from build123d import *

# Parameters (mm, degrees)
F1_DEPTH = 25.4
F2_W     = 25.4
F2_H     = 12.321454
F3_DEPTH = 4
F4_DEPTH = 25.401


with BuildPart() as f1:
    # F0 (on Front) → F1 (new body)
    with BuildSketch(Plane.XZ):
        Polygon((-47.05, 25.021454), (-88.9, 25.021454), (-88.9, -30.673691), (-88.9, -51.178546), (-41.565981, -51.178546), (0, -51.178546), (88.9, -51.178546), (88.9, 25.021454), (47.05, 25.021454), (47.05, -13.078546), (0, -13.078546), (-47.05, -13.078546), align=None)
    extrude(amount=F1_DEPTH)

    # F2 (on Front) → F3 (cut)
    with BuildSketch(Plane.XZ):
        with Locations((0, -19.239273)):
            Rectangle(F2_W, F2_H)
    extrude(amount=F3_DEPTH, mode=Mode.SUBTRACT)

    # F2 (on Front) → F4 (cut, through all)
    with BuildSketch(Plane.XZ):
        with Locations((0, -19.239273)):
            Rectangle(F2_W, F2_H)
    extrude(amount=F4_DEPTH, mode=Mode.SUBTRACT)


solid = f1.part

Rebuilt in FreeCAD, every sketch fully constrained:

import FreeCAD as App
import Part
import Sketcher

V = App.Vector
Q = App.Units.Quantity

doc = App.newDocument("Part")
body = doc.addObject("PartDesign::Body", "Body")

# Sketch on XZ plane
sketch1 = body.newObject("Sketcher::SketchObject", "Sketch")
sketch1.AttachmentSupport = (doc.getObject("XZ_Plane"), [""])
sketch1.MapMode = "FlatFace"
sketch1.addGeometry([
    Part.LineSegment(V(-47, 25, 0), V(-89, 25, 0)),  # 0
    Part.LineSegment(V(-89, 25, 0), V(-89, -51, 0)),  # 1
    Part.LineSegment(V(-89, -51, 0), V(89, -51, 0)),  # 2
    Part.LineSegment(V(89, -51, 0), V(89, 25, 0)),  # 3
    Part.LineSegment(V(89, 25, 0), V(47, 25, 0)),  # 4
    Part.LineSegment(V(47, 25, 0), V(47, -13, 0)),  # 5
    Part.LineSegment(V(47, -13, 0), V(-47, -13, 0)),  # 6
    Part.LineSegment(V(-47, -13, 0), V(-47, 25, 0)),  # 7
], False)
sketch1.addConstraint([
    Sketcher.Constraint("Coincident", 0, 2, 1, 1),
    Sketcher.Constraint("Coincident", 1, 2, 2, 1),
    Sketcher.Constraint("Coincident", 2, 2, 3, 1),
    Sketcher.Constraint("Coincident", 3, 2, 4, 1),
    Sketcher.Constraint("Coincident", 4, 2, 5, 1),
    Sketcher.Constraint("Coincident", 5, 2, 6, 1),
    Sketcher.Constraint("Coincident", 6, 2, 7, 1),
    Sketcher.Constraint("Coincident", 7, 2, 0, 1),
    Sketcher.Constraint("Horizontal", 0),
    Sketcher.Constraint("Vertical", 1),
    Sketcher.Constraint("Horizontal", 2),
    Sketcher.Constraint("Vertical", 3),
    Sketcher.Constraint("Horizontal", 4),
    Sketcher.Constraint("Vertical", 5),
    Sketcher.Constraint("Horizontal", 6),
    Sketcher.Constraint("Vertical", 7),
    Sketcher.Constraint("Symmetric", 0, 2, 3, 2, -2),
    Sketcher.Constraint("Equal", 0, 4),
    Sketcher.Constraint("DistanceX", 2, 1, 2, 2, Q("7 in")),
    Sketcher.Constraint("DistanceY", 1, 2, 1, 1, Q("3 in")),
    Sketcher.Constraint("DistanceY", 5, 2, 5, 1, Q("1.5 in")),
    Sketcher.Constraint("DistanceX", 0, 2, 0, 1, 41.85),
    Sketcher.Constraint("DistanceY", -1, 1, 0, 2, 25.021454),
])
pad1 = body.newObject("PartDesign::Pad", "Pad")
pad1.Profile = sketch1
pad1.Length = Q("1 in")

# Sketch on XZ plane
sketch2 = body.newObject("Sketcher::SketchObject", "Sketch001")
sketch2.AttachmentSupport = (doc.getObject("XZ_Plane"), [""])
sketch2.MapMode = "FlatFace"
sketch2.addGeometry([
    Part.LineSegment(V(-13, -13, 0), V(-13, -25, 0)),
    Part.LineSegment(V(-13, -25, 0), V(13, -25, 0)),
    Part.LineSegment(V(13, -25, 0), V(13, -13, 0)),
    Part.LineSegment(V(13, -13, 0), V(-13, -13, 0)),
], False)
sketch2.addConstraint([
    Sketcher.Constraint("Coincident", 0, 2, 1, 1),
    Sketcher.Constraint("Coincident", 1, 2, 2, 1),
    Sketcher.Constraint("Coincident", 2, 2, 3, 1),
    Sketcher.Constraint("Coincident", 3, 2, 0, 1),
    Sketcher.Constraint("Vertical", 0),
    Sketcher.Constraint("Horizontal", 1),
    Sketcher.Constraint("Vertical", 2),
    Sketcher.Constraint("Horizontal", 3),
    Sketcher.Constraint("DistanceX", 1, 1, 1, 2, Q("1 in")),
    Sketcher.Constraint("DistanceY", 0, 2, -1, 1, Q("1 in")),
    Sketcher.Constraint("DistanceX", 0, 2, -1, 1, Q("0.5 in")),
    Sketcher.Constraint("DistanceY", 0, 2, 0, 1, 12.321454),
])
pocket1 = body.newObject("PartDesign::Pocket", "Pocket")
pocket1.Profile = sketch2
pocket1.Length = 4
pocket1.Reversed = True

# Sketch on XZ plane
sketch3 = body.newObject("Sketcher::SketchObject", "Sketch002")
sketch3.AttachmentSupport = (doc.getObject("XZ_Plane"), [""])
sketch3.MapMode = "FlatFace"
sketch3.addGeometry([
    Part.LineSegment(V(-13, -13, 0), V(-13, -25, 0)),
    Part.LineSegment(V(-13, -25, 0), V(13, -25, 0)),
    Part.LineSegment(V(13, -25, 0), V(13, -13, 0)),
    Part.LineSegment(V(13, -13, 0), V(-13, -13, 0)),
], False)
sketch3.addConstraint([
    Sketcher.Constraint("Coincident", 0, 2, 1, 1),
    Sketcher.Constraint("Coincident", 1, 2, 2, 1),
    Sketcher.Constraint("Coincident", 2, 2, 3, 1),
    Sketcher.Constraint("Coincident", 3, 2, 0, 1),
    Sketcher.Constraint("Vertical", 0),
    Sketcher.Constraint("Horizontal", 1),
    Sketcher.Constraint("Vertical", 2),
    Sketcher.Constraint("Horizontal", 3),
    Sketcher.Constraint("DistanceX", 1, 1, 1, 2, Q("1 in")),
    Sketcher.Constraint("DistanceY", 0, 2, -1, 1, Q("1 in")),
    Sketcher.Constraint("DistanceX", 0, 2, -1, 1, Q("0.5 in")),
    Sketcher.Constraint("DistanceY", 0, 2, 0, 1, 12.321454),
])
pocket2 = body.newObject("PartDesign::Pocket", "Pocket001")
pocket2.Profile = sketch3
pocket2.Type = "ThroughAll"
pocket2.Reversed = True

doc.recompute()
